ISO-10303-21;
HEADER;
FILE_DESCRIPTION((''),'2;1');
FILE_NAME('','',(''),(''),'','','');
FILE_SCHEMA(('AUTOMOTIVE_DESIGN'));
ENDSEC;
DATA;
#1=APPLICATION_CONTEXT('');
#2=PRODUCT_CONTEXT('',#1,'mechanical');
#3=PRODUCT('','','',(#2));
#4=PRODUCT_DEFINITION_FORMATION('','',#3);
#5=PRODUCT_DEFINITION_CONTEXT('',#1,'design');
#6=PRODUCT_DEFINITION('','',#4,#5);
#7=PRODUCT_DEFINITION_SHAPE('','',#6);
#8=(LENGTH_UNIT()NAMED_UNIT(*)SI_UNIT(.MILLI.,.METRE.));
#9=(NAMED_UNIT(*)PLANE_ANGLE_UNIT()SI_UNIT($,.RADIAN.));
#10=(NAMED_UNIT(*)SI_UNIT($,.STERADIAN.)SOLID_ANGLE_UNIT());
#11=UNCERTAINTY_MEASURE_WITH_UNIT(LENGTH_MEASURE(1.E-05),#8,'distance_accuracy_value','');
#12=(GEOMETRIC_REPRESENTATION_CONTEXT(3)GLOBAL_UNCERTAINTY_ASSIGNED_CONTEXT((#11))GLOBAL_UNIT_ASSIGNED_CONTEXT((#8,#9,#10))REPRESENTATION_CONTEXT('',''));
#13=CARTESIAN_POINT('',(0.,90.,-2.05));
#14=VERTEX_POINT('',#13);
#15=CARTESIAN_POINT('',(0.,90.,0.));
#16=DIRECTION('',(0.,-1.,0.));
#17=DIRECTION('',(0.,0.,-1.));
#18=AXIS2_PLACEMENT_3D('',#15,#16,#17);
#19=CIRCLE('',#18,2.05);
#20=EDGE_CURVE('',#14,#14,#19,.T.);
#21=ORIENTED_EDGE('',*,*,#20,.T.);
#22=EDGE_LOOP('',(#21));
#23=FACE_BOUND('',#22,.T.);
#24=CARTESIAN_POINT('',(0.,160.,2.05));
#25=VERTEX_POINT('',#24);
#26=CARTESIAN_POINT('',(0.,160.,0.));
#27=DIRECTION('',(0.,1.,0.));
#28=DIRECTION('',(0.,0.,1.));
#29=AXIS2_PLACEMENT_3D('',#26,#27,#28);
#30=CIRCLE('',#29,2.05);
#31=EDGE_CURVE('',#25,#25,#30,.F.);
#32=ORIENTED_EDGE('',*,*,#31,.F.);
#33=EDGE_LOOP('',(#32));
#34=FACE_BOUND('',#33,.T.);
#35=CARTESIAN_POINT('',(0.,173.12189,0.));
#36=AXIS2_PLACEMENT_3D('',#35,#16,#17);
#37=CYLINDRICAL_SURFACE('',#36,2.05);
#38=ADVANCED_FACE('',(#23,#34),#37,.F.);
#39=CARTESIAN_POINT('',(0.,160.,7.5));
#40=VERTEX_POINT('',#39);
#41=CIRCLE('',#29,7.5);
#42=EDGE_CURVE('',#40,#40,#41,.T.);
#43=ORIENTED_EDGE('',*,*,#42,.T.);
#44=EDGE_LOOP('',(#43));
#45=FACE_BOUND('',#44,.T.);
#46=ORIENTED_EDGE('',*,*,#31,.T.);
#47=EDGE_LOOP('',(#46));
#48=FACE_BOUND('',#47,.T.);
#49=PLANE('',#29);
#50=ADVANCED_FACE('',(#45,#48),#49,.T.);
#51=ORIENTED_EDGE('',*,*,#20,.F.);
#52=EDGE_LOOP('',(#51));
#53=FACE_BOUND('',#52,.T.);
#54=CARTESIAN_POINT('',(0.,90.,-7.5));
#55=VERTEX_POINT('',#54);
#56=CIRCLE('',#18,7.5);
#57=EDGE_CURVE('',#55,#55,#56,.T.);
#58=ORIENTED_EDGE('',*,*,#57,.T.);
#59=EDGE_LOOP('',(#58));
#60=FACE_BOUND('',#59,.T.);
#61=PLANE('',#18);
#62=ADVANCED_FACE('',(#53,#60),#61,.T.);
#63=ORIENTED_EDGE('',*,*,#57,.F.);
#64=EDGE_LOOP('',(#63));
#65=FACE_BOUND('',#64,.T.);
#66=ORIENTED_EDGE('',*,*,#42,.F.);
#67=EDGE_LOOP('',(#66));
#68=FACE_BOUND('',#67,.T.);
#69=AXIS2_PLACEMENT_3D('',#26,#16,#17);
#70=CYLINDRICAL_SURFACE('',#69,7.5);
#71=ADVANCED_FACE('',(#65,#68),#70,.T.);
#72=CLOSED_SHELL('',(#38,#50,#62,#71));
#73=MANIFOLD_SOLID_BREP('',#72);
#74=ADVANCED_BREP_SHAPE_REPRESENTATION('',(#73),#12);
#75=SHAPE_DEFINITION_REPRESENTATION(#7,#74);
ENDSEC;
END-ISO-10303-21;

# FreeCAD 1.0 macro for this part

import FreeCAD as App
import Part
import Sketcher

doc = App.newDocument("Part")
body = doc.addObject("PartDesign::Body", "Body")

# Sketch on XZ plane
sketch1 = doc.addObject("Sketcher::SketchObject", "Sketch")
body.addObject(sketch1)
sketch1.AttachmentSupport = (doc.XZ_Plane, [""])
sketch1.MapMode = "FlatFace"
sketch1.addGeometry(Part.Circle(App.Vector(0, 0, 0), App.Vector(0, 0, 1), 8), False)
sketch1.addConstraint([
    Sketcher.Constraint("Coincident", 0, 3, -1, 1),
    Sketcher.Constraint("Diameter", 0, 15.0),
])
pad1 = doc.addObject("PartDesign::Pad", "Pad")
body.addObject(pad1)
pad1.Profile = sketch1
pad1.Length = 160
pad1.Reversed = True

# Sketch on XZ plane
sketch2 = doc.addObject("Sketcher::SketchObject", "Sketch001")
body.addObject(sketch2)
sketch2.AttachmentSupport = (doc.XZ_Plane, [""])
sketch2.MapMode = "FlatFace"
sketch2.AttachmentOffset = App.Placement(App.Vector(0, 0, -160), App.Rotation())
sketch2.addGeometry(Part.Circle(App.Vector(0, 0, 0), App.Vector(0, 0, 1), 2.2), False)
sketch2.addConstraint([
    Sketcher.Constraint("Coincident", 0, 3, -1, 1),
    Sketcher.Constraint("Diameter", 0, 4.5),
])
pocket1 = doc.addObject("PartDesign::Pocket", "Pocket")
body.addObject(pocket1)
pocket1.Profile = sketch2
pocket1.Length = 80
pocket1.Reversed = True

# Sketch on XZ plane
sketch3 = doc.addObject("Sketcher::SketchObject", "Sketch002")
body.addObject(sketch3)
sketch3.AttachmentSupport = (doc.XZ_Plane, [""])
sketch3.MapMode = "FlatFace"
sketch3.addGeometry(Part.Circle(App.Vector(0, 0, 0), App.Vector(0, 0, 1), 10), False)
sketch3.addConstraint([
    Sketcher.Constraint("Coincident", 0, 3, -1, 1),
    Sketcher.Constraint("Diameter", 0, 19.976622),
])
pocket2 = doc.addObject("PartDesign::Pocket", "Pocket001")
body.addObject(pocket2)
pocket2.Profile = sketch3
pocket2.Length = 45

# Sketch on XZ plane
sketch4 = doc.addObject("Sketcher::SketchObject", "Sketch003")
body.addObject(sketch4)
sketch4.AttachmentSupport = (doc.XZ_Plane, [""])
sketch4.MapMode = "FlatFace"
sketch4.AttachmentOffset = App.Placement(App.Vector(0, 0, -45), App.Rotation())
sketch4.addGeometry([
    Part.Circle(App.Vector(0, 0, 0), App.Vector(0, 0, 1), 7.5),
    Part.Circle(App.Vector(0, 0, 0), App.Vector(0, 0, 1), 4),
], False)
sketch4.addConstraint([
    Sketcher.Constraint("Coincident", 0, 3, -1, 1),
    Sketcher.Constraint("Coincident", 1, 3, -1, 1),
    Sketcher.Constraint("Diameter", 0, 15.0),
    Sketcher.Constraint("Diameter", 1, 8.0),
])
pocket3 = doc.addObject("PartDesign::Pocket", "Pocket002")
body.addObject(pocket3)
pocket3.Profile = sketch4
pocket3.Length = 15

# Sketch on XZ plane
sketch5 = doc.addObject("Sketcher::SketchObject", "Sketch004")
body.addObject(sketch5)
sketch5.AttachmentSupport = (doc.XZ_Plane, [""])
sketch5.MapMode = "FlatFace"
sketch5.AttachmentOffset = App.Placement(App.Vector(0, 0, -45), App.Rotation())
sketch5.addGeometry(Part.Circle(App.Vector(0, 0, 0), App.Vector(0, 0, 1), 13), False)
sketch5.addConstraint([
    Sketcher.Constraint("Coincident", 0, 3, -1, 1),
    Sketcher.Constraint("Diameter", 0, 26.002796),
])
pocket4 = doc.addObject("PartDesign::Pocket", "Pocket003")
body.addObject(pocket4)
pocket4.Profile = sketch5
pocket4.Length = 45

# Sketch on XZ plane
sketch6 = doc.addObject("Sketcher::SketchObject", "Sketch005")
body.addObject(sketch6)
sketch6.AttachmentSupport = (doc.XZ_Plane, [""])
sketch6.MapMode = "FlatFace"
sketch6.AttachmentOffset = App.Placement(App.Vector(0, 0, -90), App.Rotation())
sketch6.addGeometry([
    Part.Circle(App.Vector(0, 0, 0), App.Vector(0, 0, 1), 4.6),
    Part.Circle(App.Vector(0, 0, 0), App.Vector(0, 0, 1), 2),
], False)
sketch6.addConstraint([
    Sketcher.Constraint("Coincident", 0, 3, -1, 1),
    Sketcher.Constraint("Coincident", 1, 3, -1, 1),
    Sketcher.Constraint("Diameter", 1, 4.1),
    Sketcher.Constraint("Diameter", 0, 9.278578),
])
pad2 = doc.addObject("PartDesign::Pad", "Pad001")
body.addObject(pad2)
pad2.Profile = sketch6
pad2.Length = 70
pad2.Reversed = True

doc.recompute()
